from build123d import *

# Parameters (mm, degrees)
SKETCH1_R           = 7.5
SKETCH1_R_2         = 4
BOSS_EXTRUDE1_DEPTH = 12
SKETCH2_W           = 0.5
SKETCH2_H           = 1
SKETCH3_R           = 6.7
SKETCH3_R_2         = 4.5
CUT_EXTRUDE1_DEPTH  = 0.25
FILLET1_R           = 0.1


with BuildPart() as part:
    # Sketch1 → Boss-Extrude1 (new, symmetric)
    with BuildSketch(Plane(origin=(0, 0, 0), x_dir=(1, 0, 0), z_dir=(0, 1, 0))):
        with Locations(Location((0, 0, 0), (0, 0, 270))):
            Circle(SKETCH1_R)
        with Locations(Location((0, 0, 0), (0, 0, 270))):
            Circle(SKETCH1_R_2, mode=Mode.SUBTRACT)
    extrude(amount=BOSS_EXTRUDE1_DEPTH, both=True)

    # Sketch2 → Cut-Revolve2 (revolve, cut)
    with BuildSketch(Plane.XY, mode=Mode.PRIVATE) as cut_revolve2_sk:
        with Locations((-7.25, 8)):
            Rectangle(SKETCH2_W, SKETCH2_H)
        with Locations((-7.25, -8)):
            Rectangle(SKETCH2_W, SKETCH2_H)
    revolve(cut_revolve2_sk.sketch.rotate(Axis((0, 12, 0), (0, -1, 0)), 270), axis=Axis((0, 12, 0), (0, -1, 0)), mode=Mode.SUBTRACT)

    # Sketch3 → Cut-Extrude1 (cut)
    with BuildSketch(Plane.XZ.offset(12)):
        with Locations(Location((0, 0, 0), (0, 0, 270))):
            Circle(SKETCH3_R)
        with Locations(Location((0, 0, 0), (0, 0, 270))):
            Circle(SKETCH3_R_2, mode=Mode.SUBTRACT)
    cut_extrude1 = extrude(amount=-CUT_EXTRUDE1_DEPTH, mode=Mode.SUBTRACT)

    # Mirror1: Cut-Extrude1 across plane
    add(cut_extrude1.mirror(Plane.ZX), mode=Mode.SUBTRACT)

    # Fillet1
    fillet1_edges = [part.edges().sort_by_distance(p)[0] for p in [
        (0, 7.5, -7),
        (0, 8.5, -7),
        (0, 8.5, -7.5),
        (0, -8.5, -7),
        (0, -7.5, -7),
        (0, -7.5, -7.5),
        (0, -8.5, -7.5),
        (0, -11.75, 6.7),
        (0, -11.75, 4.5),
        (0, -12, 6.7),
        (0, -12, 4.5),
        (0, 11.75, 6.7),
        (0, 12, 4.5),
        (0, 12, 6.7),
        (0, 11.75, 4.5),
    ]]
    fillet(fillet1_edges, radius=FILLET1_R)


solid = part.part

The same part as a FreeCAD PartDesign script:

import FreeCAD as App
import Part
import Sketcher
from FreeCAD import Vector


def edges_at(feature, points):
    """Names of the edges that pass closest to the given points."""
    edges = feature.Shape.Edges
    near = lambda p: min(range(len(edges)), key=lambda i: edges[i].distToShape(Part.Vertex(*p))[0])
    return sorted({f"Edge{near(p) + 1}" for p in points})


def add_polygon(sketch, points):
    """Adds a closed chain of lines whose ends are joined by coincident constraints."""
    first, n = sketch.GeometryCount, len(points)
    for a, b in zip(points, points[1:] + points[:1]):
        sketch.addGeometry(Part.LineSegment(App.Vector(*a, 0), App.Vector(*b, 0)), False)
    for i in range(n):
        sketch.addConstraint(Sketcher.Constraint("Coincident", first + i, 2, first + (i + 1) % n, 1))

doc = App.newDocument("Part")
params = doc.addObject("Spreadsheet::Sheet", "Params")
for row, (alias, value) in enumerate([
    ("sketch1_diameter", "15 mm"),
    ("sketch1_diameter2", "8 mm"),
    ("pad1_length", "24 mm"),
    ("sketch2_height", "1 mm"),
    ("sketch2_width", "0.5 mm"),
    ("groove_angle", "360 deg"),
    ("sketch3_diameter", "9 mm"),
    ("sketch3_diameter2", "13.4 mm"),
    ("pocket1_length", "0.25 mm"),
    ("fillet_radius", "0.1 mm"),
], start=1):
    params.set(f"A{row}", alias)
    params.set(f"B{row}", "=" + value)
    params.setAlias(f"B{row}", alias)

body = doc.addObject("PartDesign::Body", "Body")

sketch1 = body.newObject("Sketcher::SketchObject", "Sketch")
sketch1.AttachmentSupport = (doc.getObject("XZ_Plane"), [""])
sketch1.MapMode = "FlatFace"
sketch1.addGeometry([
    Part.Circle(Vector(0, 0, 0), Vector(0, 0, 1), 7.5),
    Part.Circle(Vector(0, 0, 0), Vector(0, 0, 1), 4),
], False)
sketch1.addConstraint([
    Sketcher.Constraint("Coincident", 0, 3, -1, 1),
    Sketcher.Constraint("Coincident", 1, 3, -1, 1),
    Sketcher.Constraint("Diameter", 0, 15.0),
    Sketcher.Constraint("Diameter", 1, 8.0),
])
sketch1.setExpression("Constraints[2]", "Params.sketch1_diameter")
sketch1.setExpression("Constraints[3]", "Params.sketch1_diameter2")
pad1 = body.newObject("PartDesign::Pad", "Pad")
pad1.Profile = sketch1
pad1.setExpression("Length", "Params.pad1_length")
pad1.Midplane = True

sketch2 = body.newObject("Sketcher::SketchObject", "Sketch001")
sketch2.AttachmentSupport = (doc.getObject("XY_Plane"), [""])
sketch2.MapMode = "FlatFace"
add_polygon(sketch2, [(-7.5, 8.5), (-7.5, 7.5), (-7, 7.5), (-7, 8.5)])
add_polygon(sketch2, [(-7.5, -7.5), (-7.5, -8.5), (-7, -8.5), (-7, -7.5)])
sketch2.addConstraint([
    Sketcher.Constraint("Vertical", 0),
    Sketcher.Constraint("Horizontal", 1),
    Sketcher.Constraint("Vertical", 2),
    Sketcher.Constraint("Horizontal", 3),
    Sketcher.Constraint("Vertical", 4),
    Sketcher.Constraint("Horizontal", 5),
    Sketcher.Constraint("Vertical", 6),
    Sketcher.Constraint("Horizontal", 7),
    Sketcher.Constraint("Symmetric", 3, 2, 4, 2, -1),
    Sketcher.Constraint("Symmetric", 1, 2, 6, 2, -1),
    Sketcher.Constraint("DistanceY", 0, 2, 0, 1, 1.0),
    Sketcher.Constraint("DistanceX", 1, 1, 1, 2, 0.5),
    Sketcher.Constraint("DistanceX", 1, 2, -1, 1, 7.0),
    Sketcher.Constraint("DistanceY", 4, 2, 0, 2, 16.0),
])
sketch2.setExpression("Constraints[18]", "Params.sketch2_height")
sketch2.setExpression("Constraints[19]", "Params.sketch2_width")
groove = body.newObject("PartDesign::Groove", "Groove")
groove.Profile = sketch2
groove.ReferenceAxis = (sketch2, ["V_Axis"])
groove.setExpression("Angle", "Params.groove_angle")

sketch3 = body.newObject("Sketcher::SketchObject", "Sketch002")
sketch3.AttachmentSupport = (doc.getObject("XZ_Plane"), [""])
sketch3.MapMode = "FlatFace"
sketch3.AttachmentOffset = App.Placement(Vector(0, 0, 12), App.Rotation())
sketch3.addGeometry([
    Part.Circle(Vector(0, 0, 0), Vector(0, 0, 1), 6.7),
    Part.Circle(Vector(0, 0, 0), Vector(0, 0, 1), 4.5),
], False)
sketch3.addConstraint([
    Sketcher.Constraint("Coincident", 0, 3, -1, 1),
    Sketcher.Constraint("Coincident", 1, 3, -1, 1),
    Sketcher.Constraint("Diameter", 1, 9.0),
    Sketcher.Constraint("Diameter", 0, 13.4),
])
sketch3.setExpression("Constraints[2]", "Params.sketch3_diameter")
sketch3.setExpression("Constraints[3]", "Params.sketch3_diameter2")
pocket1 = body.newObject("PartDesign::Pocket", "Pocket")
pocket1.Profile = sketch3
pocket1.setExpression("Length", "Params.pocket1_length")
doc.recompute()

mirrored = body.newObject("PartDesign::Mirrored", "Mirrored")
mirrored.Originals = [pocket1]
mirrored.MirrorPlane = (doc.getObject("XZ_Plane"), [""])
body.Tip = mirrored
doc.recompute()

fillet = body.newObject("PartDesign::Fillet", "Fillet")
fillet.Base = (mirrored, edges_at(mirrored, [
    (0, 7.5, -7),
    (0, 8.5, -7),
    (0, 8.5, -7.5),
    (0, -8.5, -7),
    (0, -7.5, -7),
    (0, -7.5, -7.5),
    (0, -8.5, -7.5),
    (0, -11.75, 6.7),
    (0, -11.75, 4.5),
    (0, -12, 6.7),
    (0, -12, 4.5),
    (0, 11.75, 6.7),
    (0, 12, 4.5),
    (0, 12, 6.7),
    (0, 11.75, 4.5),
]))
fillet.setExpression("Radius", "Params.fillet_radius")

doc.recompute()
